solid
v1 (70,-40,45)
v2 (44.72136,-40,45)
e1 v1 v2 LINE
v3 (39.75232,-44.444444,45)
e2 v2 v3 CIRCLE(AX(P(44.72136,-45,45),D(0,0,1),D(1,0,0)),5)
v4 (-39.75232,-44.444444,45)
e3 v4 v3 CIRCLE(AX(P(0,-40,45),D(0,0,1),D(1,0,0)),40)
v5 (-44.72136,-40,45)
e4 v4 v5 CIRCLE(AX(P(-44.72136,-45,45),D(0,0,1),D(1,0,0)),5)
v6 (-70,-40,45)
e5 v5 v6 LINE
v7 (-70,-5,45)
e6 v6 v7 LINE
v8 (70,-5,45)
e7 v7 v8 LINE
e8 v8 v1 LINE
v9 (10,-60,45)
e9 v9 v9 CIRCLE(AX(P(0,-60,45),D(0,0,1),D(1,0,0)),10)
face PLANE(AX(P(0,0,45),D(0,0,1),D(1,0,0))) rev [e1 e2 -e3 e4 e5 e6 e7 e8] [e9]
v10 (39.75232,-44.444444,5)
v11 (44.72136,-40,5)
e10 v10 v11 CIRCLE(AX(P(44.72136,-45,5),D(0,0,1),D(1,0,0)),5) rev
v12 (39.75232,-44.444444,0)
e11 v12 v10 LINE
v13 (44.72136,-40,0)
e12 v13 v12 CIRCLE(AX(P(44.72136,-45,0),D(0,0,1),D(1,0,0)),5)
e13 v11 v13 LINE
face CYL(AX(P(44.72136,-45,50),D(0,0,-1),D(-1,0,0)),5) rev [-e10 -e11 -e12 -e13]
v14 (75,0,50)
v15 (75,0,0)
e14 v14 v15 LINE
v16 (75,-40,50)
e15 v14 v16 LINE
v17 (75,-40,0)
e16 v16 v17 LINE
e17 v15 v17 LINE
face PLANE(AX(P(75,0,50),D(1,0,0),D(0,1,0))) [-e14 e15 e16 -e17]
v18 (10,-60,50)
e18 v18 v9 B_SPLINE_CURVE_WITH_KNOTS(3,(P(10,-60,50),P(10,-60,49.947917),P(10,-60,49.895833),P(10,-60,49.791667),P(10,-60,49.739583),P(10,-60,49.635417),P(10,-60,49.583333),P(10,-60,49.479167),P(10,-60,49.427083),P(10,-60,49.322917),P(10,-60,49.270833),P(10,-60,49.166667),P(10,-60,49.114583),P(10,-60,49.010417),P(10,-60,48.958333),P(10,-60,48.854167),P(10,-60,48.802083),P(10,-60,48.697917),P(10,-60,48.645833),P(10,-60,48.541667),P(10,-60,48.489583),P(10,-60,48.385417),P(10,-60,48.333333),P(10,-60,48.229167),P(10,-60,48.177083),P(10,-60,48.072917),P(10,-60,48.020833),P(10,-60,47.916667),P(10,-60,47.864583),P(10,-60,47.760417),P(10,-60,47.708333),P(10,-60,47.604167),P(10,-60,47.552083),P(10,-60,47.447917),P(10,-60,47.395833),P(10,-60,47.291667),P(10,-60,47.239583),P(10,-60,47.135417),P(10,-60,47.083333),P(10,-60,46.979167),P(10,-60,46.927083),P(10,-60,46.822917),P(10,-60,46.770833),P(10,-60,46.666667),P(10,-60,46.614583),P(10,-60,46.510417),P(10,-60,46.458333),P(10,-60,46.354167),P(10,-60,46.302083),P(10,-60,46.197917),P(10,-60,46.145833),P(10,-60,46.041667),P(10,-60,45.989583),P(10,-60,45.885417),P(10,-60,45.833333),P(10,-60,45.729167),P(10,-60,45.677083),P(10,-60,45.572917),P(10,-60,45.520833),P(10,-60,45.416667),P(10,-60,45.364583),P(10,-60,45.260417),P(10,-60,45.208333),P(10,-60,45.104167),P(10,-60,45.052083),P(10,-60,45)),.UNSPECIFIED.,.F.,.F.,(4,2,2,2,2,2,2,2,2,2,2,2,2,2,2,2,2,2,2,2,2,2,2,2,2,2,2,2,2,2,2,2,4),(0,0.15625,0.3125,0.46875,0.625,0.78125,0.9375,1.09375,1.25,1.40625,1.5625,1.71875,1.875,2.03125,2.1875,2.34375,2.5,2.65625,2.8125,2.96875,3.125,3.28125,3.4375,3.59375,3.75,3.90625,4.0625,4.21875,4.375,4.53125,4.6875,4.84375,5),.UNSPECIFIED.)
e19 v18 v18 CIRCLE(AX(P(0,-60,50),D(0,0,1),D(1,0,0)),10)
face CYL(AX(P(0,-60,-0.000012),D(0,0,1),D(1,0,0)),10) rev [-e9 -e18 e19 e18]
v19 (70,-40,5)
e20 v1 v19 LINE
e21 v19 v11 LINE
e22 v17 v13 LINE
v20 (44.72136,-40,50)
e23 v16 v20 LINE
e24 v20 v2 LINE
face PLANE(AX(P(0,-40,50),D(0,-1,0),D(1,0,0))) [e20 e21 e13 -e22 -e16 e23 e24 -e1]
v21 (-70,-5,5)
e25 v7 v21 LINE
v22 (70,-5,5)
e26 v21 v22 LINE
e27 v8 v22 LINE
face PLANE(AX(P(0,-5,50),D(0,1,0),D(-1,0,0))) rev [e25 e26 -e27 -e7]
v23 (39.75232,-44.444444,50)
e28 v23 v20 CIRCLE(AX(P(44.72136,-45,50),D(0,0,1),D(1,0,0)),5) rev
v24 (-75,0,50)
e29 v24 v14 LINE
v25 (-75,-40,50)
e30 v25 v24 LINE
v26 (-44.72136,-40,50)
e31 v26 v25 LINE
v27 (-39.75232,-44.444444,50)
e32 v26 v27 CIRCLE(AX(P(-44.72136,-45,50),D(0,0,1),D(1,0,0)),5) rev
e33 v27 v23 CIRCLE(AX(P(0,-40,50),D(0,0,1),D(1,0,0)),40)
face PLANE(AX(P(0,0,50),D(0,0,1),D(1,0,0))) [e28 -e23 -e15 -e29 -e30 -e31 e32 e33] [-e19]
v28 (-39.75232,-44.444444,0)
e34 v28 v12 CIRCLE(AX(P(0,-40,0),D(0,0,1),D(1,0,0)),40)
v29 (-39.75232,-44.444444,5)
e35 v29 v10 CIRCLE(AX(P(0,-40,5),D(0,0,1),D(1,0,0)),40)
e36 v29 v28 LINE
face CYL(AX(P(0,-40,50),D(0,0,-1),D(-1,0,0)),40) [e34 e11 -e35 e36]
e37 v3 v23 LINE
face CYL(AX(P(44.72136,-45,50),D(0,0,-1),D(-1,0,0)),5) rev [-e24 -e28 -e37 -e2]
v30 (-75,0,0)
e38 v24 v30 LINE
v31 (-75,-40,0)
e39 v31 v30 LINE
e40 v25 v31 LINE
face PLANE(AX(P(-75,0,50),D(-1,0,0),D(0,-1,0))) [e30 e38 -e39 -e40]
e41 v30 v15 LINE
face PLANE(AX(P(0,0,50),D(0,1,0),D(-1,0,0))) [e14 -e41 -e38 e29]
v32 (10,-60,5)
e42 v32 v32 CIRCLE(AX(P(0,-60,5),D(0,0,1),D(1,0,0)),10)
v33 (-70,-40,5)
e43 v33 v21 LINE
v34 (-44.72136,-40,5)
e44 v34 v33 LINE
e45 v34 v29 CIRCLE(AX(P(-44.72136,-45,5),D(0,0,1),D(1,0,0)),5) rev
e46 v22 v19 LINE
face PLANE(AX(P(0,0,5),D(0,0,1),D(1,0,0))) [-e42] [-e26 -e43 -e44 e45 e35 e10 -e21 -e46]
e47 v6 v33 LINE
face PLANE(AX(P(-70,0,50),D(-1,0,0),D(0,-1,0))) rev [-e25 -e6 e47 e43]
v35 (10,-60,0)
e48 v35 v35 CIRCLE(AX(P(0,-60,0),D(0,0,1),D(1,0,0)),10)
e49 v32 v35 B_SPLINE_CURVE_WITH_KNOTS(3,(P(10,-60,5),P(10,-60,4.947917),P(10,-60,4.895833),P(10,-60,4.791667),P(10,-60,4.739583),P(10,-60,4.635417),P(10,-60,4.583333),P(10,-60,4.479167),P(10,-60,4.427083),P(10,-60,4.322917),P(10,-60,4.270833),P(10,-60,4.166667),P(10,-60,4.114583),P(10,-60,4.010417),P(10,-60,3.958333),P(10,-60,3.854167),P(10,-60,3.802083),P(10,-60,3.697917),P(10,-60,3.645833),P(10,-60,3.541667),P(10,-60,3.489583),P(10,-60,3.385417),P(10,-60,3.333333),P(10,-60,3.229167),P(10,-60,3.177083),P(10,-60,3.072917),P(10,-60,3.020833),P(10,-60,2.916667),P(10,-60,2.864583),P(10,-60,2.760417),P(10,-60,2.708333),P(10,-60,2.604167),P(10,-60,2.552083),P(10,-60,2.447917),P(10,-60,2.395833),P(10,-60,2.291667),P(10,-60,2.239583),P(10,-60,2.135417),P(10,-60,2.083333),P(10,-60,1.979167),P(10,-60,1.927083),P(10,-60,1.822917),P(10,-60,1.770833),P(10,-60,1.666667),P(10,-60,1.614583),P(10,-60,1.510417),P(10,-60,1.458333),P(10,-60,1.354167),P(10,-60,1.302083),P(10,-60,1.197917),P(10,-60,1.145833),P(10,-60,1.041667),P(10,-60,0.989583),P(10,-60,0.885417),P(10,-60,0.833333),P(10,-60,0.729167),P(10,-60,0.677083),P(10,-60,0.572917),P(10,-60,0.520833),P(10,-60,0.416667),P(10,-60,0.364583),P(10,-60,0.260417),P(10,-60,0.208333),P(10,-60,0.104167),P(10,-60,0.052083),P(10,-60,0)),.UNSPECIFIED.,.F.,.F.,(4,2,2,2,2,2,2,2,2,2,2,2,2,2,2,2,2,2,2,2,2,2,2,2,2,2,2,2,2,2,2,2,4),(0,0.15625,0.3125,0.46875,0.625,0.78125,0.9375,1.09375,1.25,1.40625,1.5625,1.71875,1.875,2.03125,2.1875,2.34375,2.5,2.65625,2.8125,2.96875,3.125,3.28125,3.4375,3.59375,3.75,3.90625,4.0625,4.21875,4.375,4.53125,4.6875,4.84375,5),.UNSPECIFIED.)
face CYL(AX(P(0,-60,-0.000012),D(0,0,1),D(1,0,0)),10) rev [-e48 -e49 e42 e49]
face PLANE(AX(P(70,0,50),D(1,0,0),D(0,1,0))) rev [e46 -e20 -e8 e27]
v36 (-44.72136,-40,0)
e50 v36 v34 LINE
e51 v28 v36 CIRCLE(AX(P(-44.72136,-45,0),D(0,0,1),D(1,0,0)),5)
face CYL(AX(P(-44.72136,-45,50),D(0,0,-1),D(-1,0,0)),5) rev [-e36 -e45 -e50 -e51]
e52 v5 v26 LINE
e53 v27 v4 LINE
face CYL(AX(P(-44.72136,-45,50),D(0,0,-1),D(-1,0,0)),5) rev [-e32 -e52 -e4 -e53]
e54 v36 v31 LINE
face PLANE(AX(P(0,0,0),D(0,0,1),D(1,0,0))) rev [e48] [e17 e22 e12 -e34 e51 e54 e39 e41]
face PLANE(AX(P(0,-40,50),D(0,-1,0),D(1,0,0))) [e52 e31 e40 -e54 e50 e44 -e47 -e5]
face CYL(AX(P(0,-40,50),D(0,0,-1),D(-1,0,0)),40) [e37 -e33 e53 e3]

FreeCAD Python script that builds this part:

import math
import FreeCAD as App
import Part
import Sketcher
from FreeCAD import Vector
Q = App.Units.Quantity


def edges_at(feature, points):
    """Names of the edges that pass closest to the given points."""
    edges = feature.Shape.Edges
    near = lambda p: min(range(len(edges)), key=lambda i: edges[i].distToShape(Part.Vertex(*p))[0])
    return sorted({f"Edge{near(p) + 1}" for p in points})


def faces_at(feature, points):
    """Names of the faces that lie closest to the given points."""
    faces = feature.Shape.Faces
    near = lambda p: min(range(len(faces)), key=lambda i: faces[i].distToShape(Part.Vertex(*p))[0])
    return sorted({f"Face{near(p) + 1}" for p in points})

doc = App.newDocument("Part")
params = doc.addObject("Spreadsheet::Sheet", "Params")
for row, (alias, value) in enumerate([
    ("sketch1_radius", "40 mm"),
    ("sketch1_width", "35 mm"),
    ("sketch1_height", "40 mm"),
    ("pad1_length", "50 mm"),
    ("thickness_wall", "5 mm"),
    ("fillet_radius", "5 mm"),
    ("sketch2_diameter", "20 mm"),
], start=1):
    params.set(f"A{row}", alias)
    params.set(f"B{row}", "=" + value)
    params.setAlias(f"B{row}", alias)

body = doc.addObject("PartDesign::Body", "Body")

# Sketch on XY plane
sketch1 = body.newObject("Sketcher::SketchObject", "Sketch")
sketch1.AttachmentSupport = (doc.getObject("XY_Plane"), [""])
sketch1.MapMode = "FlatFace"
sketch1.addGeometry([
    Part.LineSegment(Vector(-75, 0, 0), Vector(-75, -40, 0)),  # 0
    Part.LineSegment(Vector(-75, -40, 0), Vector(-40, -40, 0)),  # 1
    Part.ArcOfCircle(Part.Circle(Vector(0, -40, 0), Vector(0, 0, 1), 40), math.radians(180), math.radians(360)),  # 2
    Part.LineSegment(Vector(40, -40, 0), Vector(75, -40, 0)),  # 3
    Part.LineSegment(Vector(75, -40, 0), Vector(75, 0, 0)),  # 4
    Part.LineSegment(Vector(75, 0, 0), Vector(-75, 0, 0)),  # 5
], False)
sketch1.addConstraint([
    Sketcher.Constraint("Coincident", 0, 2, 1, 1),
    Sketcher.Constraint("Coincident", 1, 2, 2, 1),
    Sketcher.Constraint("Coincident", 2, 2, 3, 1),
    Sketcher.Constraint("Coincident", 3, 2, 4, 1),
    Sketcher.Constraint("Coincident", 4, 2, 5, 1),
    Sketcher.Constraint("Coincident", 5, 2, 0, 1),
    Sketcher.Constraint("Vertical", 0),
    Sketcher.Constraint("Horizontal", 1),
    Sketcher.Constraint("Horizontal", 3),
    Sketcher.Constraint("Vertical", 4),
    Sketcher.Constraint("Horizontal", 5),
    Sketcher.Constraint("Symmetric", 4, 2, 5, 2, -1, 1),
    Sketcher.Constraint("Symmetric", 1, 2, 2, 2, -2),
    Sketcher.Constraint("Horizontal", 2, 3, 0, 2),
    Sketcher.Constraint("Radius", 2, Q("40 mm")),
    Sketcher.Constraint("DistanceX", 1, 1, 1, 2, Q("35 mm")),
    Sketcher.Constraint("DistanceY", 0, 2, 0, 1, Q("40 mm")),
])
sketch1.setExpression("Constraints[14]", "Params.sketch1_radius")
sketch1.setExpression("Constraints[15]", "Params.sketch1_width")
sketch1.setExpression("Constraints[16]", "Params.sketch1_height")
pad1 = body.newObject("PartDesign::Pad", "Pad")
pad1.Profile = sketch1
pad1.setExpression("Length", "Params.pad1_length")
doc.recompute()

thickness = body.newObject("PartDesign::Thickness", "Thickness")
thickness.Base = (pad1, faces_at(pad1, [(57.5, -40, 25), (0, -80, 25), (-57.5, -40, 25)]))
thickness.setExpression("Value", "Params.thickness_wall")
thickness.Reversed = True
thickness.Join = "Intersection"
doc.recompute()

fillet = body.newObject("PartDesign::Fillet", "Fillet")
fillet.Base = (thickness, edges_at(thickness, [
    (40, -40, 47.5),
    (-40, -40, 47.5),
    (40, -40, 2.5),
    (-40, -40, 2.5),
]))
fillet.setExpression("Radius", "Params.fillet_radius")

# Sketch on XY plane
sketch2 = body.newObject("Sketcher::SketchObject", "Sketch001")
sketch2.AttachmentSupport = (doc.getObject("XY_Plane"), [""])
sketch2.MapMode = "FlatFace"
sketch2.addGeometry(Part.Circle(Vector(0, -60, 0), Vector(0, 0, 1), 10), False)
sketch2.addConstraint([
    Sketcher.Constraint("PointOnObject", 0, 3, -2),
    Sketcher.Constraint("Diameter", 0, Q("20 mm")),
    Sketcher.Constraint("DistanceY", 0, 3, -1, 1, Q("60 mm")),
])
sketch2.setExpression("Constraints[1]", "Params.sketch2_diameter")
pocket1 = body.newObject("PartDesign::Pocket", "Pocket")
pocket1.Profile = sketch2
pocket1.Type = "ThroughAll"
pocket1.Midplane = True

doc.recompute()
